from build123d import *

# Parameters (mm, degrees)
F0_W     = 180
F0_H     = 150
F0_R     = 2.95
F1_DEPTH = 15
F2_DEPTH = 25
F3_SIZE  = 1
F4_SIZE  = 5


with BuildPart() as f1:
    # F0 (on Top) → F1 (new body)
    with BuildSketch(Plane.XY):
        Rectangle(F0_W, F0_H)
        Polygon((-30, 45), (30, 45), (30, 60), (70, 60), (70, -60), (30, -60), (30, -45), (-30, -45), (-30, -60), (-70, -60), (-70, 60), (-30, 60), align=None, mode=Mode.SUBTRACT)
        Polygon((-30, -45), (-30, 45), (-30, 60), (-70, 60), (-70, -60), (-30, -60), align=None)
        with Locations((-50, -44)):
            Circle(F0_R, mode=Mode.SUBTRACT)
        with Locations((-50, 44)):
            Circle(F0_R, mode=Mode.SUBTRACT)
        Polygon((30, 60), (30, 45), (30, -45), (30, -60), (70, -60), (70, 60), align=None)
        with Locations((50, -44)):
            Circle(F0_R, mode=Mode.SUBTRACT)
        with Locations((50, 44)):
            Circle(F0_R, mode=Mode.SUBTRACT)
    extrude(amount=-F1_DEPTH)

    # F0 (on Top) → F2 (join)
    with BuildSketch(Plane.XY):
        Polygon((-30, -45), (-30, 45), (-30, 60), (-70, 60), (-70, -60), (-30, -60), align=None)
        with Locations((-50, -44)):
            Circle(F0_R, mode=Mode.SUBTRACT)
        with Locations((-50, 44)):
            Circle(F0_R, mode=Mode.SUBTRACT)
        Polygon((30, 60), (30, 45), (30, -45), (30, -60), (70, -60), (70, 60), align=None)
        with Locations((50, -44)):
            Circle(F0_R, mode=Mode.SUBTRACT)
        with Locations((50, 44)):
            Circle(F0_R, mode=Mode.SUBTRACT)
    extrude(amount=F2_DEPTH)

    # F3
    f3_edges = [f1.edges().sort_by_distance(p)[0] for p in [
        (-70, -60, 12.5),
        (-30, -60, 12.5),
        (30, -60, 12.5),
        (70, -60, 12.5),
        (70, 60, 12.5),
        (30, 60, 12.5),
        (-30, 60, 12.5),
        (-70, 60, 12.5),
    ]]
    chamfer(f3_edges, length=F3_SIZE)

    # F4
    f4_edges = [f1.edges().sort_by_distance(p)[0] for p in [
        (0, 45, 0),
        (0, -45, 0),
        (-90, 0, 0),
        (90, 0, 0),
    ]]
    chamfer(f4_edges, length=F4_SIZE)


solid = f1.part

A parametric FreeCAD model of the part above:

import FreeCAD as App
import Part
import Sketcher
from FreeCAD import Vector


def edges_at(feature, points):
    """Names of the edges that pass closest to the given points."""
    edges = feature.Shape.Edges
    near = lambda p: min(range(len(edges)), key=lambda i: edges[i].distToShape(Part.Vertex(*p))[0])
    return sorted({f"Edge{near(p) + 1}" for p in points})


def add_polygon(sketch, points):
    """Adds a closed chain of lines whose ends are joined by coincident constraints."""
    first, n = sketch.GeometryCount, len(points)
    for a, b in zip(points, points[1:] + points[:1]):
        sketch.addGeometry(Part.LineSegment(App.Vector(*a, 0), App.Vector(*b, 0)), False)
    for i in range(n):
        sketch.addConstraint(Sketcher.Constraint("Coincident", first + i, 2, first + (i + 1) % n, 1))

doc = App.newDocument("Part")
body = doc.addObject("PartDesign::Body", "Body")

# Sketch on XY plane
sketch1 = doc.addObject("Sketcher::SketchObject", "Sketch")
body.addObject(sketch1)
sketch1.AttachmentSupport = (doc.XY_Plane, [""])
sketch1.MapMode = "FlatFace"
add_polygon(sketch1, [(-90, 75), (-90, -75), (90, -75), (90, 75)])  # lines 0-3
sketch1.addGeometry(Part.Circle(Vector(-50, -44, 0), Vector(0, 0, 1), 3), False)  # 4
sketch1.addGeometry(Part.Circle(Vector(50, -44, 0), Vector(0, 0, 1), 3), False)  # 5
sketch1.addGeometry(Part.Circle(Vector(-50, 44, 0), Vector(0, 0, 1), 3), False)  # 6
add_polygon(sketch1, [(30, -45), (-30, -45), (-30, 45), (30, 45)])  # lines 7-10
sketch1.addGeometry(Part.Circle(Vector(50, 44, 0), Vector(0, 0, 1), 3), False)  # 11
sketch1.addConstraint([
    Sketcher.Constraint("Vertical", 0),
    Sketcher.Constraint("Horizontal", 1),
    Sketcher.Constraint("Vertical", 2),
    Sketcher.Constraint("Horizontal", 3),
    Sketcher.Constraint("Horizontal", 7),
    Sketcher.Constraint("Vertical", 8),
    Sketcher.Constraint("Horizontal", 9),
    Sketcher.Constraint("Vertical", 10),
    Sketcher.Constraint("Equal", 4, 5),
    Sketcher.Constraint("Equal", 5, 6),
    Sketcher.Constraint("Equal", 6, 11),
    Sketcher.Constraint("Symmetric", 5, 3, 6, 3, -1, 1),
    Sketcher.Constraint("Symmetric", 4, 3, 11, 3, -1, 1),
    Sketcher.Constraint("Symmetric", 0, 2, 2, 2, -1, 1),
    Sketcher.Constraint("Symmetric", 7, 2, 9, 2, -1, 1),
    Sketcher.Constraint("Symmetric", 4, 3, 5, 3, -2),
    Sketcher.Constraint("Diameter", 4, 5.9),
    Sketcher.Constraint("DistanceX", 1, 1, 1, 2, 180.0),
    Sketcher.Constraint("DistanceX", 7, 2, 7, 1, 60.0),
    Sketcher.Constraint("DistanceY", 0, 2, 0, 1, 150.0),
    Sketcher.Constraint("DistanceY", 8, 1, 8, 2, 90.0),
    Sketcher.Constraint("DistanceX", 4, 3, -1, 1, 50.0),
    Sketcher.Constraint("DistanceY", 4, 3, -1, 1, 44.0),
])
pad1 = doc.addObject("PartDesign::Pad", "Pad")
body.addObject(pad1)
pad1.Profile = sketch1
pad1.Length = 15
pad1.Reversed = True

# Sketch on XY plane
sketch2 = doc.addObject("Sketcher::SketchObject", "Sketch001")
body.addObject(sketch2)
sketch2.AttachmentSupport = (doc.XY_Plane, [""])
sketch2.MapMode = "FlatFace"
add_polygon(sketch2, [(-30, 60), (-70, 60), (-70, -60), (-30, -60)])  # lines 0-3
sketch2.addGeometry(Part.Circle(Vector(-50, -44, 0), Vector(0, 0, 1), 3), False)  # 4
sketch2.addGeometry(Part.Circle(Vector(-50, 44, 0), Vector(0, 0, 1), 3), False)  # 5
add_polygon(sketch2, [(30, 60), (30, -60), (70, -60), (70, 60)])  # lines 6-9
sketch2.addGeometry(Part.Circle(Vector(50, -44, 0), Vector(0, 0, 1), 3), False)  # 10
sketch2.addGeometry(Part.Circle(Vector(50, 44, 0), Vector(0, 0, 1), 3), False)  # 11
sketch2.addConstraint([
    Sketcher.Constraint("Horizontal", 0),
    Sketcher.Constraint("Vertical", 1),
    Sketcher.Constraint("Horizontal", 2),
    Sketcher.Constraint("Vertical", 3),
    Sketcher.Constraint("Vertical", 6),
    Sketcher.Constraint("Horizontal", 7),
    Sketcher.Constraint("Vertical", 8),
    Sketcher.Constraint("Horizontal", 9),
    Sketcher.Constraint("Equal", 4, 5),
    Sketcher.Constraint("Equal", 5, 10),
    Sketcher.Constraint("Equal", 10, 11),
    Sketcher.Constraint("Symmetric", 5, 3, 10, 3, -1, 1),
    Sketcher.Constraint("Symmetric", 4, 3, 11, 3, -1, 1),
    Sketcher.Constraint("Symmetric", 3, 2, 6, 2, -1, 1),
    Sketcher.Constraint("Symmetric", 1, 2, 8, 2, -1, 1),
    Sketcher.Constraint("Symmetric", 4, 3, 10, 3, -2),
    Sketcher.Constraint("Horizontal", 2, 2, 6, 2),
    Sketcher.Constraint("Diameter", 4, 5.9),
    Sketcher.Constraint("DistanceX", 0, 2, 0, 1, 40.0),
    Sketcher.Constraint("DistanceY", 1, 2, 1, 1, 120.0),
    Sketcher.Constraint("DistanceX", 4, 3, -1, 1, 50.0),
    Sketcher.Constraint("DistanceY", 4, 3, -1, 1, 44.0),
    Sketcher.Constraint("DistanceX", 0, 2, -1, 1, 70.0),
])
pad2 = doc.addObject("PartDesign::Pad", "Pad001")
body.addObject(pad2)
pad2.Profile = sketch2
pad2.Length = 25
doc.recompute()

chamfer = doc.addObject("PartDesign::Chamfer", "Chamfer")
body.addObject(chamfer)
chamfer.Base = (pad2, edges_at(pad2, [
    (-70, -60, 12.5),
    (-30, -60, 12.5),
    (30, -60, 12.5),
    (70, -60, 12.5),
    (70, 60, 12.5),
    (30, 60, 12.5),
    (-30, 60, 12.5),
    (-70, 60, 12.5),
]))
chamfer.Size = 1
doc.recompute()

chamfer2 = doc.addObject("PartDesign::Chamfer", "Chamfer001")
body.addObject(chamfer2)
chamfer2.Base = (chamfer, edges_at(chamfer, [
    (0, 45, 0),
    (0, -45, 0),
    (-90, 0, 0),
    (90, 0, 0),
]))
chamfer2.Size = 5

doc.recompute()
